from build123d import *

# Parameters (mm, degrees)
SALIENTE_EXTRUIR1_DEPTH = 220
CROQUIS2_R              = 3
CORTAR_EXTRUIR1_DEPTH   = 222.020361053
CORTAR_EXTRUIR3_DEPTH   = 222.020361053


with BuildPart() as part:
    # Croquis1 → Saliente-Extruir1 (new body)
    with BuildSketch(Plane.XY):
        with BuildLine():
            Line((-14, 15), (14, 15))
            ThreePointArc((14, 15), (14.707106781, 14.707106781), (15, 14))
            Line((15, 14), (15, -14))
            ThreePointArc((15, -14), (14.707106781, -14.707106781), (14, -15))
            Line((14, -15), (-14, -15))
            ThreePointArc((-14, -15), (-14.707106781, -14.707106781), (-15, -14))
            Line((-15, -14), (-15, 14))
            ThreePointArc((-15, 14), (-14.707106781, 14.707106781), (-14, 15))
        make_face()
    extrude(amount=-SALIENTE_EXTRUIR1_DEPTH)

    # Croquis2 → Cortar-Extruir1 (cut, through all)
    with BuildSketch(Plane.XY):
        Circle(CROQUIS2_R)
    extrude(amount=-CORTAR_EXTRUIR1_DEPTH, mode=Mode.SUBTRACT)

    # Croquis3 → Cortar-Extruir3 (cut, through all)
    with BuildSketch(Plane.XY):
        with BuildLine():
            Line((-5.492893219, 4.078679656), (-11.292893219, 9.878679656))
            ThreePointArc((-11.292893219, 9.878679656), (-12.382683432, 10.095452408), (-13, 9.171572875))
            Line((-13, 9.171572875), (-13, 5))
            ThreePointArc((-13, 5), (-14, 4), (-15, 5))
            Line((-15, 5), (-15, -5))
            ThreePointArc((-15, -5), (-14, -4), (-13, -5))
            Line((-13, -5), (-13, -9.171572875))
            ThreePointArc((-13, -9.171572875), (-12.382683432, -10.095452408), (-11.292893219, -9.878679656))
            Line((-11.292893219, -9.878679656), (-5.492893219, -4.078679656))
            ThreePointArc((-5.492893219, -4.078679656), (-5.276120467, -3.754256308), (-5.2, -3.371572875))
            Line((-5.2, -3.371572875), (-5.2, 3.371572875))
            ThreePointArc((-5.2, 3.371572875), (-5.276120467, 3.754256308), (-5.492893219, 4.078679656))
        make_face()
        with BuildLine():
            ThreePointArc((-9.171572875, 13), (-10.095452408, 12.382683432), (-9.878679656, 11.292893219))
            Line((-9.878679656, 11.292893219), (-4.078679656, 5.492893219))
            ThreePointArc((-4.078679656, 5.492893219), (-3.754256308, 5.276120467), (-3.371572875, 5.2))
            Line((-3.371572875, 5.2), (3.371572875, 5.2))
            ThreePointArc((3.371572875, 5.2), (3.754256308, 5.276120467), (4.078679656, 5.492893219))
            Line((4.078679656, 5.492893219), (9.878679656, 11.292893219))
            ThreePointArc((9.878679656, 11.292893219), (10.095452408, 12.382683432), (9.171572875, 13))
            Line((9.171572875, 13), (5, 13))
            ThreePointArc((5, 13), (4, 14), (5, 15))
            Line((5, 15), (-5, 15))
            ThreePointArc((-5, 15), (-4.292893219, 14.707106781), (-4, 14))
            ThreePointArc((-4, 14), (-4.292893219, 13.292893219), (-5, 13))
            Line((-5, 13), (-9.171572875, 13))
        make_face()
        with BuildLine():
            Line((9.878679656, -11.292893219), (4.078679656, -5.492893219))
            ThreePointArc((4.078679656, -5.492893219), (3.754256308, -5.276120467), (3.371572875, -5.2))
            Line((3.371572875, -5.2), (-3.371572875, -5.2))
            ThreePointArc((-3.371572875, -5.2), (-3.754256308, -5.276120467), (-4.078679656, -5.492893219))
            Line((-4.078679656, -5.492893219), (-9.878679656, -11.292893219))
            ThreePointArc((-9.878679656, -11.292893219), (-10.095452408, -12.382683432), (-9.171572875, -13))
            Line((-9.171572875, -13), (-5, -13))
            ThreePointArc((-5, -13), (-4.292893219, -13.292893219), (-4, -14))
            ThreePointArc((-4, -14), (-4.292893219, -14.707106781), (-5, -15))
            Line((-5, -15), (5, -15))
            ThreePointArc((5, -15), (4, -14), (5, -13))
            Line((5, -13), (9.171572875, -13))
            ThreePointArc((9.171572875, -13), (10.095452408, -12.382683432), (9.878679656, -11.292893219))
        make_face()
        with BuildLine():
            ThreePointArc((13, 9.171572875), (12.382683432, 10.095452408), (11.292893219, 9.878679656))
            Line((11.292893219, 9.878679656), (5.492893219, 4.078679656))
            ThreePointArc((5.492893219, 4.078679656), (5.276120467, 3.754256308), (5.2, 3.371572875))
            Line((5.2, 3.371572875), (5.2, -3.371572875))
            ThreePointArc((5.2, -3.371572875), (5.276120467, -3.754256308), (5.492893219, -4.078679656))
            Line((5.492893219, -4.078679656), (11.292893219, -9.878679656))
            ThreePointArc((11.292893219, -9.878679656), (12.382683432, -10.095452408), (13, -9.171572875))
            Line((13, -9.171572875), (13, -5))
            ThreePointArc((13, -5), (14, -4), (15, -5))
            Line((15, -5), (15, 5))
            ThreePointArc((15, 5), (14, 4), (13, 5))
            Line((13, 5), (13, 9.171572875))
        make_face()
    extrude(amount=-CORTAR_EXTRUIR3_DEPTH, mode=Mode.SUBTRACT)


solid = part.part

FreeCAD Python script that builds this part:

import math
import FreeCAD as App
import Part
import Sketcher
Q = App.Units.Quantity

doc = App.newDocument("Part")
params = doc.addObject("Spreadsheet::Sheet", "Params")
for row, (alias, value) in enumerate([
    ("sketch1_radius", "1 mm"),
    ("sketch1_width", "28 mm"),
    ("pad1_length", "220 mm"),
    ("sketch2_diameter", "6 mm"),
    ("sketch3_radius", "1 mm"),
    ("sketch3_width", "10 mm"),
], start=1):
    params.set(f"A{row}", alias)
    params.set(f"B{row}", "=" + value)
    params.setAlias(f"B{row}", alias)

body = doc.addObject("PartDesign::Body", "Body")

# Sketch on XY plane
sketch1 = body.newObject("Sketcher::SketchObject", "Sketch")
sketch1.AttachmentSupport = (doc.getObject("XY_Plane"), [""])
sketch1.MapMode = "FlatFace"
sketch1.addGeometry(Part.LineSegment(App.Vector(14, 15, 0), App.Vector(-14, 15, 0)), False)
sketch1.addGeometry(Part.ArcOfCircle(Part.Circle(App.Vector(-14, 14, 0), App.Vector(0, 0, 1), 1), math.radians(90), math.radians(180)), False)
sketch1.addGeometry(Part.LineSegment(App.Vector(-15, 14, 0), App.Vector(-15, -14, 0)), False)
sketch1.addGeometry(Part.ArcOfCircle(Part.Circle(App.Vector(-14, -14, 0), App.Vector(0, 0, 1), 1), math.radians(-180), math.radians(-90)), False)
sketch1.addGeometry(Part.LineSegment(App.Vector(-14, -15, 0), App.Vector(14, -15, 0)), False)
sketch1.addGeometry(Part.ArcOfCircle(Part.Circle(App.Vector(14, -14, 0), App.Vector(0, 0, 1), 1), math.radians(-90), math.radians(0)), False)
sketch1.addGeometry(Part.LineSegment(App.Vector(15, -14, 0), App.Vector(15, 14, 0)), False)
sketch1.addGeometry(Part.ArcOfCircle(Part.Circle(App.Vector(14, 14, 0), App.Vector(0, 0, 1), 1), math.radians(0), math.radians(90)), False)
sketch1.addConstraint(Sketcher.Constraint("Tangent", 0, 2, 1, 1))
sketch1.addConstraint(Sketcher.Constraint("Tangent", 1, 2, 2, 1))
sketch1.addConstraint(Sketcher.Constraint("Tangent", 2, 2, 3, 1))
sketch1.addConstraint(Sketcher.Constraint("Tangent", 3, 2, 4, 1))
sketch1.addConstraint(Sketcher.Constraint("Tangent", 4, 2, 5, 1))
sketch1.addConstraint(Sketcher.Constraint("Tangent", 5, 2, 6, 1))
sketch1.addConstraint(Sketcher.Constraint("Tangent", 6, 2, 7, 1))
sketch1.addConstraint(Sketcher.Constraint("Tangent", 7, 2, 0, 1))
sketch1.addConstraint(Sketcher.Constraint("Horizontal", 0))
sketch1.addConstraint(Sketcher.Constraint("Vertical", 2))
sketch1.addConstraint(Sketcher.Constraint("Horizontal", 4))
sketch1.addConstraint(Sketcher.Constraint("Vertical", 6))
sketch1.addConstraint(Sketcher.Constraint("Equal", 1, 3))
sketch1.addConstraint(Sketcher.Constraint("Equal", 3, 5))
sketch1.addConstraint(Sketcher.Constraint("Equal", 5, 7))
sketch1.addConstraint(Sketcher.Constraint("Symmetric", 1, 3, 5, 3, -1, 1))
sketch1.addConstraint(Sketcher.Constraint("Equal", 4, 2))
sketch1.addConstraint(Sketcher.Constraint("Radius", 1, Q("1 mm")))
sketch1.addConstraint(Sketcher.Constraint("DistanceX", 0, 2, 0, 1, Q("28 mm")))
sketch1.setExpression("Constraints[17]", "Params.sketch1_radius")
sketch1.setExpression("Constraints[18]", "Params.sketch1_width")
pad1 = body.newObject("PartDesign::Pad", "Pad")
pad1.Profile = sketch1
pad1.setExpression("Length", "Params.pad1_length")
pad1.Reversed = True

# Sketch on XY plane
sketch2 = body.newObject("Sketcher::SketchObject", "Sketch001")
sketch2.AttachmentSupport = (doc.getObject("XY_Plane"), [""])
sketch2.MapMode = "FlatFace"
sketch2.addGeometry(Part.Circle(App.Vector(0, 0, 0), App.Vector(0, 0, 1), 3), False)
sketch2.addConstraint(Sketcher.Constraint("Coincident", 0, 3, -1, 1))
sketch2.addConstraint(Sketcher.Constraint("Diameter", 0, Q("6 mm")))
sketch2.setExpression("Constraints[1]", "Params.sketch2_diameter")
pocket1 = body.newObject("PartDesign::Pocket", "Pocket")
pocket1.Profile = sketch2
pocket1.Type = "ThroughAll"

# Sketch on XY plane
sketch3 = body.newObject("Sketcher::SketchObject", "Sketch002")
sketch3.AttachmentSupport = (doc.getObject("XY_Plane"), [""])
sketch3.MapMode = "FlatFace"
sketch3.addGeometry(Part.LineSegment(App.Vector(-5.5, 4.1, 0), App.Vector(-11.3, 9.9, 0)), False)
sketch3.addGeometry(Part.ArcOfCircle(Part.Circle(App.Vector(-12, 9.2, 0), App.Vector(0, 0, 1), 1), math.radians(45), math.radians(180)), False)
sketch3.addGeometry(Part.LineSegment(App.Vector(-13, 9.2, 0), App.Vector(-13, 5, 0)), False)
sketch3.addGeometry(Part.ArcOfCircle(Part.Circle(App.Vector(-14, 5, 0), App.Vector(0, 0, 1), 1), math.radians(180), math.radians(360)), False)
sketch3.addGeometry(Part.LineSegment(App.Vector(-15, 5, 0), App.Vector(-15, -5, 0)), False)
sketch3.addGeometry(Part.ArcOfCircle(Part.Circle(App.Vector(-14, -5, 0), App.Vector(0, 0, 1), 1), math.radians(0), math.radians(180)), False)
sketch3.addGeometry(Part.LineSegment(App.Vector(-13, -5, 0), App.Vector(-13, -9.2, 0)), False)
sketch3.addGeometry(Part.ArcOfCircle(Part.Circle(App.Vector(-12, -9.2, 0), App.Vector(0, 0, 1), 1), math.radians(180), math.radians(315)), False)
sketch3.addGeometry(Part.LineSegment(App.Vector(-11.3, -9.9, 0), App.Vector(-5.5, -4.1, 0)), False)
sketch3.addGeometry(Part.ArcOfCircle(Part.Circle(App.Vector(-6.2, -3.4, 0), App.Vector(0, 0, 1), 1), math.radians(-45), math.radians(0)), False)
sketch3.addGeometry(Part.LineSegment(App.Vector(-5.2, -3.4, 0), App.Vector(-5.2, 3.4, 0)), False)
sketch3.addGeometry(Part.ArcOfCircle(Part.Circle(App.Vector(-6.2, 3.4, 0), App.Vector(0, 0, 1), 1), math.radians(0), math.radians(45)), False)
sketch3.addGeometry(Part.ArcOfCircle(Part.Circle(App.Vector(-9.2, 12, 0), App.Vector(0, 0, 1), 1), math.radians(90), math.radians(225)), False)
sketch3.addGeometry(Part.LineSegment(App.Vector(-9.9, 11.3, 0), App.Vector(-4.1, 5.5, 0)), False)
sketch3.addGeometry(Part.ArcOfCircle(Part.Circle(App.Vector(-3.4, 6.2, 0), App.Vector(0, 0, 1), 1), math.radians(-135), math.radians(-90)), False)
sketch3.addGeometry(Part.LineSegment(App.Vector(-3.4, 5.2, 0), App.Vector(3.4, 5.2, 0)), False)
sketch3.addGeometry(Part.ArcOfCircle(Part.Circle(App.Vector(3.4, 6.2, 0), App.Vector(0, 0, 1), 1), math.radians(-90), math.radians(-45)), False)
sketch3.addGeometry(Part.LineSegment(App.Vector(4.1, 5.5, 0), App.Vector(9.9, 11.3, 0)), False)
sketch3.addGeometry(Part.ArcOfCircle(Part.Circle(App.Vector(9.2, 12, 0), App.Vector(0, 0, 1), 1), math.radians(-45), math.radians(90)), False)
sketch3.addGeometry(Part.LineSegment(App.Vector(9.2, 13, 0), App.Vector(5, 13, 0)), False)
sketch3.addGeometry(Part.ArcOfCircle(Part.Circle(App.Vector(5, 14, 0), App.Vector(0, 0, 1), 1), math.radians(90), math.radians(270)), False)
sketch3.addGeometry(Part.LineSegment(App.Vector(5, 15, 0), App.Vector(-5, 15, 0)), False)
sketch3.addGeometry(Part.ArcOfCircle(Part.Circle(App.Vector(-5, 14, 0), App.Vector(0, 0, 1), 1), math.radians(0), math.radians(90)), False)
sketch3.addGeometry(Part.ArcOfCircle(Part.Circle(App.Vector(-5, 14, 0), App.Vector(0, 0, 1), 1), math.radians(-90), math.radians(0)), False)
sketch3.addGeometry(Part.LineSegment(App.Vector(-5, 13, 0), App.Vector(-9.2, 13, 0)), False)
sketch3.addGeometry(Part.LineSegment(App.Vector(9.9, -11.3, 0), App.Vector(4.1, -5.5, 0)), False)
sketch3.addGeometry(Part.ArcOfCircle(Part.Circle(App.Vector(3.4, -6.2, 0), App.Vector(0, 0, 1), 1), math.radians(45), math.radians(90)), False)
sketch3.addGeometry(Part.LineSegment(App.Vector(3.4, -5.2, 0), App.Vector(-3.4, -5.2, 0)), False)
sketch3.addGeometry(Part.ArcOfCircle(Part.Circle(App.Vector(-3.4, -6.2, 0), App.Vector(0, 0, 1), 1), math.radians(90), math.radians(135)), False)
sketch3.addGeometry(Part.LineSegment(App.Vector(-4.1, -5.5, 0), App.Vector(-9.9, -11.3, 0)), False)
sketch3.addGeometry(Part.ArcOfCircle(Part.Circle(App.Vector(-9.2, -12, 0), App.Vector(0, 0, 1), 1), math.radians(135), math.radians(270)), False)
sketch3.addGeometry(Part.LineSegment(App.Vector(-9.2, -13, 0), App.Vector(-5, -13, 0)), False)
sketch3.addGeometry(Part.ArcOfCircle(Part.Circle(App.Vector(-5, -14, 0), App.Vector(0, 0, 1), 1), math.radians(0), math.radians(90)), False)
sketch3.addGeometry(Part.ArcOfCircle(Part.Circle(App.Vector(-5, -14, 0), App.Vector(0, 0, 1), 1), math.radians(-90), math.radians(0)), False)
sketch3.addGeometry(Part.LineSegment(App.Vector(-5, -15, 0), App.Vector(5, -15, 0)), False)
sketch3.addGeometry(Part.ArcOfCircle(Part.Circle(App.Vector(5, -14, 0), App.Vector(0, 0, 1), 1), math.radians(90), math.radians(270)), False)
sketch3.addGeometry(Part.LineSegment(App.Vector(5, -13, 0), App.Vector(9.2, -13, 0)), False)
sketch3.addGeometry(Part.ArcOfCircle(Part.Circle(App.Vector(9.2, -12, 0), App.Vector(0, 0, 1), 1), math.radians(-90), math.radians(45)), False)
sketch3.addGeometry(Part.ArcOfCircle(Part.Circle(App.Vector(12, 9.2, 0), App.Vector(0, 0, 1), 1), math.radians(0), math.radians(135)), False)
sketch3.addGeometry(Part.LineSegment(App.Vector(11.3, 9.9, 0), App.Vector(5.5, 4.1, 0)), False)
sketch3.addGeometry(Part.ArcOfCircle(Part.Circle(App.Vector(6.2, 3.4, 0), App.Vector(0, 0, 1), 1), math.radians(135), math.radians(180)), False)
sketch3.addGeometry(Part.LineSegment(App.Vector(5.2, 3.4, 0), App.Vector(5.2, -3.4, 0)), False)
sketch3.addGeometry(Part.ArcOfCircle(Part.Circle(App.Vector(6.2, -3.4, 0), App.Vector(0, 0, 1), 1), math.radians(180), math.radians(225)), False)
sketch3.addGeometry(Part.LineSegment(App.Vector(5.5, -4.1, 0), App.Vector(11.3, -9.9, 0)), False)
sketch3.addGeometry(Part.ArcOfCircle(Part.Circle(App.Vector(12, -9.2, 0), App.Vector(0, 0, 1), 1), math.radians(-135), math.radians(0)), False)
sketch3.addGeometry(Part.LineSegment(App.Vector(13, -9.2, 0), App.Vector(13, -5, 0)), False)
sketch3.addGeometry(Part.ArcOfCircle(Part.Circle(App.Vector(14, -5, 0), App.Vector(0, 0, 1), 1), math.radians(0), math.radians(180)), False)
sketch3.addGeometry(Part.LineSegment(App.Vector(15, -5, 0), App.Vector(15, 5, 0)), False)
sketch3.addGeometry(Part.ArcOfCircle(Part.Circle(App.Vector(14, 5, 0), App.Vector(0, 0, 1), 1), math.radians(180), math.radians(360)), False)
sketch3.addGeometry(Part.LineSegment(App.Vector(13, 5, 0), App.Vector(13, 9.2, 0)), False)
sketch3.addConstraint(Sketcher.Constraint("Tangent", 0, 2, 1, 1))
sketch3.addConstraint(Sketcher.Constraint("Tangent", 1, 2, 2, 1))
sketch3.addConstraint(Sketcher.Constraint("Tangent", 2, 2, 3, 2))
sketch3.addConstraint(Sketcher.Constraint("Tangent", 3, 1, 4, 1))
sketch3.addConstraint(Sketcher.Constraint("Tangent", 4, 2, 5, 2))
sketch3.addConstraint(Sketcher.Constraint("Tangent", 5, 1, 6, 1))
sketch3.addConstraint(Sketcher.Constraint("Tangent", 6, 2, 7, 1))
sketch3.addConstraint(Sketcher.Constraint("Tangent", 7, 2, 8, 1))
sketch3.addConstraint(Sketcher.Constraint("Tangent", 8, 2, 9, 1))
sketch3.addConstraint(Sketcher.Constraint("Tangent", 9, 2, 10, 1))
sketch3.addConstraint(Sketcher.Constraint("Tangent", 10, 2, 11, 1))
sketch3.addConstraint(Sketcher.Constraint("Tangent", 11, 2, 0, 1))
sketch3.addConstraint(Sketcher.Constraint("Tangent", 12, 2, 13, 1))
sketch3.addConstraint(Sketcher.Constraint("Tangent", 13, 2, 14, 1))
sketch3.addConstraint(Sketcher.Constraint("Tangent", 14, 2, 15, 1))
sketch3.addConstraint(Sketcher.Constraint("Tangent", 15, 2, 16, 1))
sketch3.addConstraint(Sketcher.Constraint("Tangent", 16, 2, 17, 1))
sketch3.addConstraint(Sketcher.Constraint("Tangent", 17, 2, 18, 1))
sketch3.addConstraint(Sketcher.Constraint("Tangent", 18, 2, 19, 1))
sketch3.addConstraint(Sketcher.Constraint("Tangent", 19, 2, 20, 2))
sketch3.addConstraint(Sketcher.Constraint("Tangent", 20, 1, 21, 1))
sketch3.addConstraint(Sketcher.Constraint("Tangent", 21, 2, 22, 2))
sketch3.addConstraint(Sketcher.Constraint("Tangent", 22, 1, 23, 2))
sketch3.addConstraint(Sketcher.Constraint("Tangent", 23, 1, 24, 1))
sketch3.addConstraint(Sketcher.Constraint("Tangent", 24, 2, 12, 1))
sketch3.addConstraint(Sketcher.Constraint("Tangent", 25, 2, 26, 1))
sketch3.addConstraint(Sketcher.Constraint("Tangent", 26, 2, 27, 1))
sketch3.addConstraint(Sketcher.Constraint("Tangent", 27, 2, 28, 1))
sketch3.addConstraint(Sketcher.Constraint("Tangent", 28, 2, 29, 1))
sketch3.addConstraint(Sketcher.Constraint("Tangent", 29, 2, 30, 1))
sketch3.addConstraint(Sketcher.Constraint("Tangent", 30, 2, 31, 1))
sketch3.addConstraint(Sketcher.Constraint("Tangent", 31, 2, 32, 2))
sketch3.addConstraint(Sketcher.Constraint("Tangent", 32, 1, 33, 2))
sketch3.addConstraint(Sketcher.Constraint("Tangent", 33, 1, 34, 1))
sketch3.addConstraint(Sketcher.Constraint("Tangent", 34, 2, 35, 2))
sketch3.addConstraint(Sketcher.Constraint("Tangent", 35, 1, 36, 1))
sketch3.addConstraint(Sketcher.Constraint("Tangent", 36, 2, 37, 1))
sketch3.addConstraint(Sketcher.Constraint("Tangent", 37, 2, 25, 1))
sketch3.addConstraint(Sketcher.Constraint("Tangent", 38, 2, 39, 1))
sketch3.addConstraint(Sketcher.Constraint("Tangent", 39, 2, 40, 1))
sketch3.addConstraint(Sketcher.Constraint("Tangent", 40, 2, 41, 1))
sketch3.addConstraint(Sketcher.Constraint("Tangent", 41, 2, 42, 1))
sketch3.addConstraint(Sketcher.Constraint("Tangent", 42, 2, 43, 1))
sketch3.addConstraint(Sketcher.Constraint("Tangent", 43, 2, 44, 1))
sketch3.addConstraint(Sketcher.Constraint("Tangent", 44, 2, 45, 1))
sketch3.addConstraint(Sketcher.Constraint("Tangent", 45, 2, 46, 2))
sketch3.addConstraint(Sketcher.Constraint("Tangent", 46, 1, 47, 1))
sketch3.addConstraint(Sketcher.Constraint("Tangent", 47, 2, 48, 2))
sketch3.addConstraint(Sketcher.Constraint("Tangent", 48, 1, 49, 1))
sketch3.addConstraint(Sketcher.Constraint("Tangent", 49, 2, 38, 1))
sketch3.addConstraint(Sketcher.Constraint("Vertical", 2))
sketch3.addConstraint(Sketcher.Constraint("Vertical", 4))
sketch3.addConstraint(Sketcher.Constraint("Vertical", 6))
sketch3.addConstraint(Sketcher.Constraint("Vertical", 10))
sketch3.addConstraint(Sketcher.Constraint("Horizontal", 15))
sketch3.addConstraint(Sketcher.Constraint("Horizontal", 19))
sketch3.addConstraint(Sketcher.Constraint("Horizontal", 21))
sketch3.addConstraint(Sketcher.Constraint("Horizontal", 24))
sketch3.addConstraint(Sketcher.Constraint("Horizontal", 27))
sketch3.addConstraint(Sketcher.Constraint("Horizontal", 31))
sketch3.addConstraint(Sketcher.Constraint("Horizontal", 34))
sketch3.addConstraint(Sketcher.Constraint("Horizontal", 36))
sketch3.addConstraint(Sketcher.Constraint("Vertical", 41))
sketch3.addConstraint(Sketcher.Constraint("Vertical", 45))
sketch3.addConstraint(Sketcher.Constraint("Vertical", 47))
sketch3.addConstraint(Sketcher.Constraint("Vertical", 49))
sketch3.addConstraint(Sketcher.Constraint("Equal", 1, 3))
sketch3.addConstraint(Sketcher.Constraint("Equal", 3, 5))
sketch3.addConstraint(Sketcher.Constraint("Equal", 5, 7))
sketch3.addConstraint(Sketcher.Constraint("Equal", 7, 9))
sketch3.addConstraint(Sketcher.Constraint("Equal", 9, 11))
sketch3.addConstraint(Sketcher.Constraint("Equal", 11, 12))
sketch3.addConstraint(Sketcher.Constraint("Equal", 12, 14))
sketch3.addConstraint(Sketcher.Constraint("Equal", 14, 16))
sketch3.addConstraint(Sketcher.Constraint("Equal", 16, 18))
sketch3.addConstraint(Sketcher.Constraint("Equal", 18, 20))
sketch3.addConstraint(Sketcher.Constraint("Equal", 20, 22))
sketch3.addConstraint(Sketcher.Constraint("Equal", 22, 23))
sketch3.addConstraint(Sketcher.Constraint("Equal", 23, 26))
sketch3.addConstraint(Sketcher.Constraint("Equal", 26, 28))
sketch3.addConstraint(Sketcher.Constraint("Equal", 28, 30))
sketch3.addConstraint(Sketcher.Constraint("Equal", 30, 32))
sketch3.addConstraint(Sketcher.Constraint("Equal", 32, 33))
sketch3.addConstraint(Sketcher.Constraint("Equal", 33, 35))
sketch3.addConstraint(Sketcher.Constraint("Equal", 35, 37))
sketch3.addConstraint(Sketcher.Constraint("Equal", 37, 38))
sketch3.addConstraint(Sketcher.Constraint("Equal", 38, 40))
sketch3.addConstraint(Sketcher.Constraint("Equal", 40, 42))
sketch3.addConstraint(Sketcher.Constraint("Equal", 42, 44))
sketch3.addConstraint(Sketcher.Constraint("Equal", 44, 46))
sketch3.addConstraint(Sketcher.Constraint("Equal", 46, 48))
sketch3.addConstraint(Sketcher.Constraint("Symmetric", 14, 3, 26, 3, -1, 1))
sketch3.addConstraint(Sketcher.Constraint("Symmetric", 18, 3, 30, 3, -1, 1))
sketch3.addConstraint(Sketcher.Constraint("Symmetric", 7, 3, 38, 3, -1, 1))
sketch3.addConstraint(Sketcher.Constraint("Symmetric", 9, 3, 40, 3, -1, 1))
sketch3.addConstraint(Sketcher.Constraint("Symmetric", 11, 2, 42, 2, -1, 1))
sketch3.addConstraint(Sketcher.Constraint("Symmetric", 13, 2, 16, 2, -2))
sketch3.addConstraint(Sketcher.Constraint("Symmetric", 25, 2, 28, 2, -2))
sketch3.addConstraint(Sketcher.Constraint("Symmetric", 0, 2, 38, 2, -2))
sketch3.addConstraint(Sketcher.Constraint("Symmetric", 22, 1, 32, 1, -1))
sketch3.addConstraint(Sketcher.Constraint("Perpendicular", 0, 8))
sketch3.addConstraint(Sketcher.Constraint("Perpendicular", 8, 13))
sketch3.addConstraint(Sketcher.Constraint("Horizontal", 5, 3, 46, 3))
sketch3.addConstraint(Sketcher.Constraint("Horizontal", 3, 3, 48, 3))
sketch3.addConstraint(Sketcher.Constraint("Horizontal", 23, 3, 22, 1))
sketch3.addConstraint(Sketcher.Constraint("Vertical", 20, 3, 35, 3))
sketch3.addConstraint(Sketcher.Constraint("Equal", 19, 24))
sketch3.addConstraint(Sketcher.Constraint("Equal", 36, 2))
sketch3.addConstraint(Sketcher.Constraint("Equal", 34, 4))
sketch3.addConstraint(Sketcher.Constraint("Equal", 2, 6))
sketch3.addConstraint(Sketcher.Constraint("Equal", 27, 10))
sketch3.addConstraint(Sketcher.Constraint("Radius", 1, Q("1 mm")))
sketch3.addConstraint(Sketcher.Constraint("DistanceX", 21, 2, 21, 1, Q("10 mm")))
sketch3.addConstraint(Sketcher.Constraint("DistanceX", 1, 3, -1, 1, Q("12 mm")))
sketch3.addConstraint(Sketcher.Constraint("DistanceY", -1, 1, 12, 3, Q("12 mm")))
sketch3.addConstraint(Sketcher.Constraint("DistanceX", 9, 3, -1, 1, Q("6.2 mm")))
sketch3.addConstraint(Sketcher.Constraint("DistanceX", 15, 1, 15, 2, Q("6.743146 mm")))
sketch3.setExpression("Constraints[111]", "Params.sketch3_radius")
sketch3.setExpression("Constraints[112]", "Params.sketch3_width")
pocket2 = body.newObject("PartDesign::Pocket", "Pocket001")
pocket2.Profile = sketch3
pocket2.Type = "ThroughAll"

doc.recompute()
